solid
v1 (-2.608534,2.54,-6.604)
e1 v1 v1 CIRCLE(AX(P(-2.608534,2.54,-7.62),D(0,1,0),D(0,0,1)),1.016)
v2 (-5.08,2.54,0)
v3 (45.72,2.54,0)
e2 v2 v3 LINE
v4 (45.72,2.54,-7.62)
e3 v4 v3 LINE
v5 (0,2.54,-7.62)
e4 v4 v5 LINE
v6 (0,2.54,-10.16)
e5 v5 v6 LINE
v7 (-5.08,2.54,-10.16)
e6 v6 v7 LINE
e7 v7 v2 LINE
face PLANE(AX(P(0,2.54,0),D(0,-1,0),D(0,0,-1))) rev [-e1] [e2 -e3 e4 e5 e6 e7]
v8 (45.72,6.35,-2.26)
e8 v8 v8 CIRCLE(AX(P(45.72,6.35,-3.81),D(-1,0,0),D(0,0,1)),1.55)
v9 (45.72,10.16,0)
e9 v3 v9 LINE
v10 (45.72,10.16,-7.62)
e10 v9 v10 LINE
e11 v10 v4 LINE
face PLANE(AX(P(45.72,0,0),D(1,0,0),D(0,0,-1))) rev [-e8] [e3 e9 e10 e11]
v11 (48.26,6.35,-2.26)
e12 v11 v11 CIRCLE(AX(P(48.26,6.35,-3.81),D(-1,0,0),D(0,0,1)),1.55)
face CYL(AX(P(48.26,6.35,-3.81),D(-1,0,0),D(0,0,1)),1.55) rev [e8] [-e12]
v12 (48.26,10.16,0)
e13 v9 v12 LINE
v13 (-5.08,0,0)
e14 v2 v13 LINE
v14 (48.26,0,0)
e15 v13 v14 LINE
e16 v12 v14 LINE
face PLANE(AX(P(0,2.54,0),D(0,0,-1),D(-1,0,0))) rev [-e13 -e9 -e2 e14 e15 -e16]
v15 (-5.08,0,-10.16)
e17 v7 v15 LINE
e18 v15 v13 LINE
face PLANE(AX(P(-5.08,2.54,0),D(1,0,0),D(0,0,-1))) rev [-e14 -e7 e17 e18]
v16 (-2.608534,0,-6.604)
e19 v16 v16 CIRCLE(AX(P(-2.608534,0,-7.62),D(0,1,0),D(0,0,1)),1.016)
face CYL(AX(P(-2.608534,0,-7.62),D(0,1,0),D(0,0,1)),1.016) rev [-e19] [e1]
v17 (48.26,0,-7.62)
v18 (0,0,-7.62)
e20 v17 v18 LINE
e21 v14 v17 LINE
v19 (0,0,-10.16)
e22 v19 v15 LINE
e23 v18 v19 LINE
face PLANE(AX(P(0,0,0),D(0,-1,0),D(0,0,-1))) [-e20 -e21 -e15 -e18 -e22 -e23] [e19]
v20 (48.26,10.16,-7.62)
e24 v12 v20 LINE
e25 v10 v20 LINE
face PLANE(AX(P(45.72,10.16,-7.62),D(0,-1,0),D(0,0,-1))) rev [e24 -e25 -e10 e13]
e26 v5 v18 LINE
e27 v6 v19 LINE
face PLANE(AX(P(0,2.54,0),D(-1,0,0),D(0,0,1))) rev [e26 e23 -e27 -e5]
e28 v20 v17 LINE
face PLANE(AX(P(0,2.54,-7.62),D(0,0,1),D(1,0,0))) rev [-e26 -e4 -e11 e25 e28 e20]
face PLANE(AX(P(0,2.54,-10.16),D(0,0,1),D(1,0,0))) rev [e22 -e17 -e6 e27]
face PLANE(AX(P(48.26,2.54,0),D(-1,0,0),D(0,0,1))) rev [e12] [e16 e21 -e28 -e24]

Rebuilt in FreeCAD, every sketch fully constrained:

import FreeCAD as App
import Part
import Sketcher
Q = App.Units.Quantity

doc = App.newDocument("Part")
body = doc.addObject("PartDesign::Body", "Body")

sketch1 = body.newObject("Sketcher::SketchObject", "Sketch")
sketch1.AttachmentSupport = (doc.getObject("XZ_Plane"), [""])
sketch1.MapMode = "FlatFace"
sketch1.addGeometry([
    Part.LineSegment(App.Vector(0, -8, 0), App.Vector(0, 0, 0)),
    Part.LineSegment(App.Vector(0, 0, 0), App.Vector(48, 0, 0)),
    Part.LineSegment(App.Vector(48, 0, 0), App.Vector(48, -8, 0)),
    Part.LineSegment(App.Vector(48, -8, 0), App.Vector(0, -8, 0)),
], False)
sketch1.addConstraint([
    Sketcher.Constraint("Coincident", 0, 2, 1, 1),
    Sketcher.Constraint("Coincident", 1, 2, 2, 1),
    Sketcher.Constraint("Coincident", 2, 2, 3, 1),
    Sketcher.Constraint("Coincident", 3, 2, 0, 1),
    Sketcher.Constraint("Vertical", 0),
    Sketcher.Constraint("Horizontal", 1),
    Sketcher.Constraint("Vertical", 2),
    Sketcher.Constraint("Horizontal", 3),
    Sketcher.Constraint("Coincident", 0, 2, -1, 1),
    Sketcher.Constraint("DistanceX", 1, 1, 1, 2, Q("1.9 in")),
    Sketcher.Constraint("DistanceY", 0, 1, 0, 2, Q("0.3 in")),
])
pad1 = body.newObject("PartDesign::Pad", "Pad")
pad1.Profile = sketch1
pad1.Length = Q("0.1 in")
pad1.Reversed = True

sketch2 = body.newObject("Sketcher::SketchObject", "Sketch001")
sketch2.AttachmentSupport = (doc.getObject("XZ_Plane"), [""])
sketch2.MapMode = "FlatFace"
sketch2.addGeometry([
    Part.LineSegment(App.Vector(-5, -10, 0), App.Vector(-5, 0, 0)),
    Part.LineSegment(App.Vector(-5, 0, 0), App.Vector(0, 0, 0)),
    Part.LineSegment(App.Vector(0, 0, 0), App.Vector(0, -10, 0)),
    Part.LineSegment(App.Vector(0, -10, 0), App.Vector(-5, -10, 0)),
], False)
sketch2.addConstraint([
    Sketcher.Constraint("Coincident", 0, 2, 1, 1),
    Sketcher.Constraint("Coincident", 1, 2, 2, 1),
    Sketcher.Constraint("Coincident", 2, 2, 3, 1),
    Sketcher.Constraint("Coincident", 3, 2, 0, 1),
    Sketcher.Constraint("Vertical", 0),
    Sketcher.Constraint("Horizontal", 1),
    Sketcher.Constraint("Vertical", 2),
    Sketcher.Constraint("Horizontal", 3),
    Sketcher.Constraint("Coincident", 1, 2, -1, 1),
    Sketcher.Constraint("DistanceX", 1, 1, 1, 2, Q("0.2 in")),
    Sketcher.Constraint("DistanceY", 0, 1, 0, 2, Q("0.4 in")),
])
pad2 = body.newObject("PartDesign::Pad", "Pad001")
pad2.Profile = sketch2
pad2.Length = Q("0.1 in")
pad2.Reversed = True

sketch3 = body.newObject("Sketcher::SketchObject", "Sketch002")
sketch3.AttachmentSupport = (doc.getObject("XZ_Plane"), [""])
sketch3.MapMode = "FlatFace"
sketch3.AttachmentOffset = App.Placement(App.Vector(0, 0, -0.1 * 25.4), App.Rotation())
sketch3.addGeometry(Part.Circle(App.Vector(-2.6, -7.6, 0), App.Vector(0, 0, 1), 1), False)
sketch3.addConstraint([
    Sketcher.Constraint("Diameter", 0, Q("0.08 in")),
    Sketcher.Constraint("DistanceY", 0, 3, -1, 1, Q("0.3 in")),
    Sketcher.Constraint("DistanceX", 0, 3, -1, 1, Q("2.608534 mm")),
])
pocket1 = body.newObject("PartDesign::Pocket", "Pocket")
pocket1.Profile = sketch3
pocket1.Length = Q("0.1 in")
pocket1.Reversed = True

sketch4 = body.newObject("Sketcher::SketchObject", "Sketch003")
sketch4.AttachmentSupport = (doc.getObject("YZ_Plane"), [""])
sketch4.MapMode = "FlatFace"
sketch4.AttachmentOffset = App.Placement(App.Vector(0, 0, 1.9 * 25.4), App.Rotation())
sketch4.addGeometry([
    Part.LineSegment(App.Vector(10, -8, 0), App.Vector(3, -8, 0)),
    Part.LineSegment(App.Vector(3, -8, 0), App.Vector(3, 0, 0)),
    Part.LineSegment(App.Vector(3, 0, 0), App.Vector(10, 0, 0)),
    Part.LineSegment(App.Vector(10, 0, 0), App.Vector(10, -8, 0)),
], False)
sketch4.addConstraint([
    Sketcher.Constraint("Coincident", 0, 2, 1, 1),
    Sketcher.Constraint("Coincident", 1, 2, 2, 1),
    Sketcher.Constraint("Coincident", 2, 2, 3, 1),
    Sketcher.Constraint("Coincident", 3, 2, 0, 1),
    Sketcher.Constraint("Horizontal", 0),
    Sketcher.Constraint("Vertical", 1),
    Sketcher.Constraint("Horizontal", 2),
    Sketcher.Constraint("Vertical", 3),
    Sketcher.Constraint("PointOnObject", 1, 2, -1),
    Sketcher.Constraint("Equal", 2, 1),
    Sketcher.Constraint("DistanceX", 0, 2, 0, 1, Q("0.3 in")),
    Sketcher.Constraint("DistanceX", -1, 1, 0, 2, Q("0.1 in")),
])
pad3 = body.newObject("PartDesign::Pad", "Pad002")
pad3.Profile = sketch4
pad3.Length = Q("0.1 in")
pad3.Reversed = True

sketch5 = body.newObject("Sketcher::SketchObject", "Sketch004")
sketch5.AttachmentSupport = (doc.getObject("YZ_Plane"), [""])
sketch5.MapMode = "FlatFace"
sketch5.AttachmentOffset = App.Placement(App.Vector(0, 0, 1.8 * 25.4), App.Rotation())
sketch5.addGeometry(Part.Circle(App.Vector(6.3, -3.8, 0), App.Vector(0, 0, 1), 1.6), False)
sketch5.addConstraint([
    Sketcher.Constraint("Diameter", 0, Q("3.1 mm")),
    Sketcher.Constraint("DistanceX", -1, 1, 0, 3, Q("0.25 in")),
    Sketcher.Constraint("DistanceY", 0, 3, -1, 1, Q("0.15 in")),
])
pocket2 = body.newObject("PartDesign::Pocket", "Pocket001")
pocket2.Profile = sketch5
pocket2.Length = Q("0.1 in")
pocket2.Reversed = True

doc.recompute()
